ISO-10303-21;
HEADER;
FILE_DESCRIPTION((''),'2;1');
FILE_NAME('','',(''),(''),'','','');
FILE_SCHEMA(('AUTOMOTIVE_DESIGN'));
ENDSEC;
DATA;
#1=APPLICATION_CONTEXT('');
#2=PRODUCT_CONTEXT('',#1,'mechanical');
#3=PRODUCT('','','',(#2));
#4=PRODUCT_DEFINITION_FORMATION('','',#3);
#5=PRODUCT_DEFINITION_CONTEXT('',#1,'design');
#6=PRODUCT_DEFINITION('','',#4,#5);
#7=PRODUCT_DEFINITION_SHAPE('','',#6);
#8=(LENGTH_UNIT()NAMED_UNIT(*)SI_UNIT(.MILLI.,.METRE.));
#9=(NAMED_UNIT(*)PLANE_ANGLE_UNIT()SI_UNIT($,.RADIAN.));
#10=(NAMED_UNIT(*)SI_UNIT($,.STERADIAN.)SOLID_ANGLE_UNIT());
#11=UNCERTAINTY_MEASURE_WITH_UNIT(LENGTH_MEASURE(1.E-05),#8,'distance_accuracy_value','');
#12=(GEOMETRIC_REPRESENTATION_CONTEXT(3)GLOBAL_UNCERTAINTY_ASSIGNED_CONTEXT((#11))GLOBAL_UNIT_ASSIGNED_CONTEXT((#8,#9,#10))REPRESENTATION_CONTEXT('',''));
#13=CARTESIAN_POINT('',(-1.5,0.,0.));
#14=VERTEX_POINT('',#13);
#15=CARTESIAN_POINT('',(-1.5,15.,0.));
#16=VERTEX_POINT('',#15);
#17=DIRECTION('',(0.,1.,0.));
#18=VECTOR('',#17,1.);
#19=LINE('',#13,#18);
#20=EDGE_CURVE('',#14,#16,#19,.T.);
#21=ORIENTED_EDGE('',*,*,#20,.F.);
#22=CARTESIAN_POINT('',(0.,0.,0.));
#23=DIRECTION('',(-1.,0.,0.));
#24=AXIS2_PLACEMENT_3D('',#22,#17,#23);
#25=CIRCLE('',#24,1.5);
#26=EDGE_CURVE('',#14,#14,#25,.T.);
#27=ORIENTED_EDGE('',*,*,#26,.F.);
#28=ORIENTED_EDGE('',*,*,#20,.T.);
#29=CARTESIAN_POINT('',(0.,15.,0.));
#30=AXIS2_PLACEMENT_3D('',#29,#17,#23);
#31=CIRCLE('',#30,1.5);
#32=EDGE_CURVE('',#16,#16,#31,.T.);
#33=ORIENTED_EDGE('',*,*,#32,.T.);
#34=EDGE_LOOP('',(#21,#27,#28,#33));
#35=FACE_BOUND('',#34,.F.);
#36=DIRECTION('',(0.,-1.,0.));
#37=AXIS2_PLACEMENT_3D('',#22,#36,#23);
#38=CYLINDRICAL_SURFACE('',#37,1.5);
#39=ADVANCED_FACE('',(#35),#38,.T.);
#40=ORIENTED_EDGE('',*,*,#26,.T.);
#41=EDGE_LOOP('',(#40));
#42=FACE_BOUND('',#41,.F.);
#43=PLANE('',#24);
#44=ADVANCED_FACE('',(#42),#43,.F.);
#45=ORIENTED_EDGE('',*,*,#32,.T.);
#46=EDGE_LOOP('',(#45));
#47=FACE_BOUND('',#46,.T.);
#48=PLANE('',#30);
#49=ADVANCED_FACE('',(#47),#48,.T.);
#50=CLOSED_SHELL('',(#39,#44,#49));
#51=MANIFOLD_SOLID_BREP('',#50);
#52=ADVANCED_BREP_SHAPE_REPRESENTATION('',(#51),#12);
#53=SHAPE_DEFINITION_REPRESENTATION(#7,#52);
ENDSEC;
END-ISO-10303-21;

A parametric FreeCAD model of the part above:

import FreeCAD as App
import Part
import Sketcher

doc = App.newDocument("Part")
body = doc.addObject("PartDesign::Body", "Body")

# Sketch on XZ plane
sketch1 = body.newObject("Sketcher::SketchObject", "Sketch")
sketch1.AttachmentSupport = (doc.getObject("XZ_Plane"), [""])
sketch1.MapMode = "FlatFace"
sketch1.addGeometry(Part.Circle(App.Vector(0, 0, 0), App.Vector(0, 0, 1), 1.5), False)
sketch1.addConstraint(Sketcher.Constraint("Coincident", 0, 3, -1, 1))
sketch1.addConstraint(Sketcher.Constraint("Diameter", 0, 3.0))
pad1 = body.newObject("PartDesign::Pad", "Pad")
pad1.Profile = sketch1
pad1.Length = 15
pad1.Reversed = True

doc.recompute()
